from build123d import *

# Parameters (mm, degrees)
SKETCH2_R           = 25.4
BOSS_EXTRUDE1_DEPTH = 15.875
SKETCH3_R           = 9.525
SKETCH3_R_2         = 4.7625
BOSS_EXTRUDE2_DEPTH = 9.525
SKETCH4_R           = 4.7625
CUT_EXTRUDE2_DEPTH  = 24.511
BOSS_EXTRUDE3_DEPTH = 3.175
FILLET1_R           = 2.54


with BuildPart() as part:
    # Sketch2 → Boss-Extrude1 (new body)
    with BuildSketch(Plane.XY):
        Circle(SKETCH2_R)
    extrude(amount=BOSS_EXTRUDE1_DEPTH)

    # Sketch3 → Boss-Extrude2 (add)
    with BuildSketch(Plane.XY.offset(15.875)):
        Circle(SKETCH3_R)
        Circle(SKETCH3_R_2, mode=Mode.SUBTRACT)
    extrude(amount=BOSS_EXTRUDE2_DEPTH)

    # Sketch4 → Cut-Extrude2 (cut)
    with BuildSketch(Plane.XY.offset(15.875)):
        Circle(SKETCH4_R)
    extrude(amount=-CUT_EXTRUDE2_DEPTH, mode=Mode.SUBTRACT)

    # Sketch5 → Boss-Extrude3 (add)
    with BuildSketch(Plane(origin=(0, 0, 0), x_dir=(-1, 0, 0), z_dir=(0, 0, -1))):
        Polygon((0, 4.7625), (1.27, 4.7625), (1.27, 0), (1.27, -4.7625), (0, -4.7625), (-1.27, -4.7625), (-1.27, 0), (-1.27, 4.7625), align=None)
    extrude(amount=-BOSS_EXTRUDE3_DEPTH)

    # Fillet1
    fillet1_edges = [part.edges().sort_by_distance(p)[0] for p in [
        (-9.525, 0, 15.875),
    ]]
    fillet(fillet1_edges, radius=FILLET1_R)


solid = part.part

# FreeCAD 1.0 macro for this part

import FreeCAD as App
import Part
import Sketcher
Q = App.Units.Quantity


def edges_at(feature, points):
    """Names of the edges that pass closest to the given points."""
    edges = feature.Shape.Edges
    near = lambda p: min(range(len(edges)), key=lambda i: edges[i].distToShape(Part.Vertex(*p))[0])
    return sorted({f"Edge{near(p) + 1}" for p in points})


def add_polygon(sketch, points):
    """Adds a closed chain of lines whose ends are joined by coincident constraints."""
    first, n = sketch.GeometryCount, len(points)
    for a, b in zip(points, points[1:] + points[:1]):
        sketch.addGeometry(Part.LineSegment(App.Vector(*a, 0), App.Vector(*b, 0)), False)
    for i in range(n):
        sketch.addConstraint(Sketcher.Constraint("Coincident", first + i, 2, first + (i + 1) % n, 1))

doc = App.newDocument("Part")
body = doc.addObject("PartDesign::Body", "Body")

sketch1 = doc.addObject("Sketcher::SketchObject", "Sketch")
body.addObject(sketch1)
sketch1.AttachmentSupport = (doc.XY_Plane, [""])
sketch1.MapMode = "FlatFace"
sketch1.addGeometry(Part.Circle(App.Vector(0, 0, 0), App.Vector(0, 0, 1), 25), False)
sketch1.addConstraint([
    Sketcher.Constraint("Coincident", 0, 3, -1, 1),
    Sketcher.Constraint("Diameter", 0, Q("2 in")),
])
pad1 = doc.addObject("PartDesign::Pad", "Pad")
body.addObject(pad1)
pad1.Profile = sketch1
pad1.Length = Q("0.625 in")

sketch2 = doc.addObject("Sketcher::SketchObject", "Sketch001")
body.addObject(sketch2)
sketch2.AttachmentSupport = (doc.XY_Plane, [""])
sketch2.MapMode = "FlatFace"
sketch2.AttachmentOffset = App.Placement(App.Vector(0, 0, 0.625 * 25.4), App.Rotation())
sketch2.addGeometry([
    Part.Circle(App.Vector(0, 0, 0), App.Vector(0, 0, 1), 9.5),
    Part.Circle(App.Vector(0, 0, 0), App.Vector(0, 0, 1), 4.8),
], False)
sketch2.addConstraint([
    Sketcher.Constraint("Coincident", 0, 3, -1, 1),
    Sketcher.Constraint("Coincident", 1, 3, -1, 1),
    Sketcher.Constraint("Diameter", 0, Q("0.75 in")),
    Sketcher.Constraint("Diameter", 1, Q("0.375 in")),
])
pad2 = doc.addObject("PartDesign::Pad", "Pad001")
body.addObject(pad2)
pad2.Profile = sketch2
pad2.Length = Q("0.375 in")

sketch3 = doc.addObject("Sketcher::SketchObject", "Sketch002")
body.addObject(sketch3)
sketch3.AttachmentSupport = (doc.XY_Plane, [""])
sketch3.MapMode = "FlatFace"
sketch3.AttachmentOffset = App.Placement(App.Vector(0, 0, 0.625 * 25.4), App.Rotation())
sketch3.addGeometry(Part.Circle(App.Vector(0, 0, 0), App.Vector(0, 0, 1), 4.8), False)
sketch3.addConstraint([
    Sketcher.Constraint("Coincident", 0, 3, -1, 1),
    Sketcher.Constraint("Diameter", 0, Q("0.375 in")),
])
pocket1 = doc.addObject("PartDesign::Pocket", "Pocket")
body.addObject(pocket1)
pocket1.Profile = sketch3
pocket1.Length = Q("0.965 in")

sketch4 = doc.addObject("Sketcher::SketchObject", "Sketch003")
body.addObject(sketch4)
sketch4.AttachmentSupport = (doc.XY_Plane, [""])
sketch4.MapMode = "FlatFace"
add_polygon(sketch4, [(-1.3, 4.8), (1.3, 4.8), (1.3, -4.8), (-1.3, -4.8)])
sketch4.addConstraint([
    Sketcher.Constraint("Horizontal", 0),
    Sketcher.Constraint("Vertical", 1),
    Sketcher.Constraint("Horizontal", 2),
    Sketcher.Constraint("Vertical", 3),
    Sketcher.Constraint("Symmetric", 0, 2, 2, 2, -1, 1),
    Sketcher.Constraint("DistanceX", 0, 1, 0, 2, Q("0.1 in")),
    Sketcher.Constraint("DistanceY", 1, 2, 1, 1, Q("0.375 in")),
])
pad3 = doc.addObject("PartDesign::Pad", "Pad002")
body.addObject(pad3)
pad3.Profile = sketch4
pad3.Length = Q("0.125 in")
doc.recompute()

fillet = doc.addObject("PartDesign::Fillet", "Fillet")
body.addObject(fillet)
fillet.Base = (pad3, edges_at(pad3, [(-9.525, 0, 15.875)]))
fillet.Radius = Q("0.1 in")

doc.recompute()
